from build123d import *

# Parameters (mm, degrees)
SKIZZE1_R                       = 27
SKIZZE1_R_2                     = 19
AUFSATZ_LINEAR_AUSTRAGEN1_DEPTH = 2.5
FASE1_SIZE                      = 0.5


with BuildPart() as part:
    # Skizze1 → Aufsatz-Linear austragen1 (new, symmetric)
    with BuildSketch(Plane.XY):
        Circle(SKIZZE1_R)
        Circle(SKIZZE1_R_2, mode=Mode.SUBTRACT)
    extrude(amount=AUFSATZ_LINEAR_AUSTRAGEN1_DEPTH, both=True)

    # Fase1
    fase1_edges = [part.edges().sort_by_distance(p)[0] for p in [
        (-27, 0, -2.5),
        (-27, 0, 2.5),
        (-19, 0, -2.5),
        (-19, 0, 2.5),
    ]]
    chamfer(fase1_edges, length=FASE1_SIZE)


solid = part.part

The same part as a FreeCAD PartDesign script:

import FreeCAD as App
import Part
import Sketcher

V = App.Vector
Q = App.Units.Quantity


def edges_at(feature, points):
    """Names of the edges that pass closest to the given points."""
    edges = feature.Shape.Edges
    near = lambda p: min(range(len(edges)), key=lambda i: edges[i].distToShape(Part.Vertex(*p))[0])
    return sorted({f"Edge{near(p) + 1}" for p in points})

doc = App.newDocument("Part")
params = doc.addObject("Spreadsheet::Sheet", "Params")
for row, (alias, value) in enumerate([
    ("sketch1_diameter", "54 mm"),
    ("sketch1_diameter2", "38 mm"),
    ("pad1_length", "5 mm"),
    ("chamfer_size", "0.5 mm"),
], start=1):
    params.set(f"A{row}", alias)
    params.set(f"B{row}", "=" + value)
    params.setAlias(f"B{row}", alias)

body = doc.addObject("PartDesign::Body", "Body")

sketch1 = body.newObject("Sketcher::SketchObject", "Sketch")
sketch1.AttachmentSupport = (doc.getObject("XY_Plane"), [""])
sketch1.MapMode = "FlatFace"
sketch1.addGeometry(Part.Circle(V(0, 0, 0), V(0, 0, 1), 27), False)
sketch1.addGeometry(Part.Circle(V(0, 0, 0), V(0, 0, 1), 19), False)
sketch1.addConstraint(Sketcher.Constraint("Coincident", 0, 3, -1, 1))
sketch1.addConstraint(Sketcher.Constraint("Coincident", 1, 3, -1, 1))
sketch1.addConstraint(Sketcher.Constraint("Diameter", 0, Q("54 mm")))
sketch1.addConstraint(Sketcher.Constraint("Diameter", 1, Q("38 mm")))
sketch1.setExpression("Constraints[2]", "Params.sketch1_diameter")
sketch1.setExpression("Constraints[3]", "Params.sketch1_diameter2")
pad1 = body.newObject("PartDesign::Pad", "Pad")
pad1.Profile = sketch1
pad1.setExpression("Length", "Params.pad1_length")
pad1.Midplane = True
doc.recompute()

chamfer = body.newObject("PartDesign::Chamfer", "Chamfer")
chamfer.Base = (pad1, edges_at(pad1, [
    (-27, 0, -2.5),
    (-27, 0, 2.5),
    (-19, 0, -2.5),
    (-19, 0, 2.5),
]))
chamfer.setExpression("Size", "Params.chamfer_size")

doc.recompute()
